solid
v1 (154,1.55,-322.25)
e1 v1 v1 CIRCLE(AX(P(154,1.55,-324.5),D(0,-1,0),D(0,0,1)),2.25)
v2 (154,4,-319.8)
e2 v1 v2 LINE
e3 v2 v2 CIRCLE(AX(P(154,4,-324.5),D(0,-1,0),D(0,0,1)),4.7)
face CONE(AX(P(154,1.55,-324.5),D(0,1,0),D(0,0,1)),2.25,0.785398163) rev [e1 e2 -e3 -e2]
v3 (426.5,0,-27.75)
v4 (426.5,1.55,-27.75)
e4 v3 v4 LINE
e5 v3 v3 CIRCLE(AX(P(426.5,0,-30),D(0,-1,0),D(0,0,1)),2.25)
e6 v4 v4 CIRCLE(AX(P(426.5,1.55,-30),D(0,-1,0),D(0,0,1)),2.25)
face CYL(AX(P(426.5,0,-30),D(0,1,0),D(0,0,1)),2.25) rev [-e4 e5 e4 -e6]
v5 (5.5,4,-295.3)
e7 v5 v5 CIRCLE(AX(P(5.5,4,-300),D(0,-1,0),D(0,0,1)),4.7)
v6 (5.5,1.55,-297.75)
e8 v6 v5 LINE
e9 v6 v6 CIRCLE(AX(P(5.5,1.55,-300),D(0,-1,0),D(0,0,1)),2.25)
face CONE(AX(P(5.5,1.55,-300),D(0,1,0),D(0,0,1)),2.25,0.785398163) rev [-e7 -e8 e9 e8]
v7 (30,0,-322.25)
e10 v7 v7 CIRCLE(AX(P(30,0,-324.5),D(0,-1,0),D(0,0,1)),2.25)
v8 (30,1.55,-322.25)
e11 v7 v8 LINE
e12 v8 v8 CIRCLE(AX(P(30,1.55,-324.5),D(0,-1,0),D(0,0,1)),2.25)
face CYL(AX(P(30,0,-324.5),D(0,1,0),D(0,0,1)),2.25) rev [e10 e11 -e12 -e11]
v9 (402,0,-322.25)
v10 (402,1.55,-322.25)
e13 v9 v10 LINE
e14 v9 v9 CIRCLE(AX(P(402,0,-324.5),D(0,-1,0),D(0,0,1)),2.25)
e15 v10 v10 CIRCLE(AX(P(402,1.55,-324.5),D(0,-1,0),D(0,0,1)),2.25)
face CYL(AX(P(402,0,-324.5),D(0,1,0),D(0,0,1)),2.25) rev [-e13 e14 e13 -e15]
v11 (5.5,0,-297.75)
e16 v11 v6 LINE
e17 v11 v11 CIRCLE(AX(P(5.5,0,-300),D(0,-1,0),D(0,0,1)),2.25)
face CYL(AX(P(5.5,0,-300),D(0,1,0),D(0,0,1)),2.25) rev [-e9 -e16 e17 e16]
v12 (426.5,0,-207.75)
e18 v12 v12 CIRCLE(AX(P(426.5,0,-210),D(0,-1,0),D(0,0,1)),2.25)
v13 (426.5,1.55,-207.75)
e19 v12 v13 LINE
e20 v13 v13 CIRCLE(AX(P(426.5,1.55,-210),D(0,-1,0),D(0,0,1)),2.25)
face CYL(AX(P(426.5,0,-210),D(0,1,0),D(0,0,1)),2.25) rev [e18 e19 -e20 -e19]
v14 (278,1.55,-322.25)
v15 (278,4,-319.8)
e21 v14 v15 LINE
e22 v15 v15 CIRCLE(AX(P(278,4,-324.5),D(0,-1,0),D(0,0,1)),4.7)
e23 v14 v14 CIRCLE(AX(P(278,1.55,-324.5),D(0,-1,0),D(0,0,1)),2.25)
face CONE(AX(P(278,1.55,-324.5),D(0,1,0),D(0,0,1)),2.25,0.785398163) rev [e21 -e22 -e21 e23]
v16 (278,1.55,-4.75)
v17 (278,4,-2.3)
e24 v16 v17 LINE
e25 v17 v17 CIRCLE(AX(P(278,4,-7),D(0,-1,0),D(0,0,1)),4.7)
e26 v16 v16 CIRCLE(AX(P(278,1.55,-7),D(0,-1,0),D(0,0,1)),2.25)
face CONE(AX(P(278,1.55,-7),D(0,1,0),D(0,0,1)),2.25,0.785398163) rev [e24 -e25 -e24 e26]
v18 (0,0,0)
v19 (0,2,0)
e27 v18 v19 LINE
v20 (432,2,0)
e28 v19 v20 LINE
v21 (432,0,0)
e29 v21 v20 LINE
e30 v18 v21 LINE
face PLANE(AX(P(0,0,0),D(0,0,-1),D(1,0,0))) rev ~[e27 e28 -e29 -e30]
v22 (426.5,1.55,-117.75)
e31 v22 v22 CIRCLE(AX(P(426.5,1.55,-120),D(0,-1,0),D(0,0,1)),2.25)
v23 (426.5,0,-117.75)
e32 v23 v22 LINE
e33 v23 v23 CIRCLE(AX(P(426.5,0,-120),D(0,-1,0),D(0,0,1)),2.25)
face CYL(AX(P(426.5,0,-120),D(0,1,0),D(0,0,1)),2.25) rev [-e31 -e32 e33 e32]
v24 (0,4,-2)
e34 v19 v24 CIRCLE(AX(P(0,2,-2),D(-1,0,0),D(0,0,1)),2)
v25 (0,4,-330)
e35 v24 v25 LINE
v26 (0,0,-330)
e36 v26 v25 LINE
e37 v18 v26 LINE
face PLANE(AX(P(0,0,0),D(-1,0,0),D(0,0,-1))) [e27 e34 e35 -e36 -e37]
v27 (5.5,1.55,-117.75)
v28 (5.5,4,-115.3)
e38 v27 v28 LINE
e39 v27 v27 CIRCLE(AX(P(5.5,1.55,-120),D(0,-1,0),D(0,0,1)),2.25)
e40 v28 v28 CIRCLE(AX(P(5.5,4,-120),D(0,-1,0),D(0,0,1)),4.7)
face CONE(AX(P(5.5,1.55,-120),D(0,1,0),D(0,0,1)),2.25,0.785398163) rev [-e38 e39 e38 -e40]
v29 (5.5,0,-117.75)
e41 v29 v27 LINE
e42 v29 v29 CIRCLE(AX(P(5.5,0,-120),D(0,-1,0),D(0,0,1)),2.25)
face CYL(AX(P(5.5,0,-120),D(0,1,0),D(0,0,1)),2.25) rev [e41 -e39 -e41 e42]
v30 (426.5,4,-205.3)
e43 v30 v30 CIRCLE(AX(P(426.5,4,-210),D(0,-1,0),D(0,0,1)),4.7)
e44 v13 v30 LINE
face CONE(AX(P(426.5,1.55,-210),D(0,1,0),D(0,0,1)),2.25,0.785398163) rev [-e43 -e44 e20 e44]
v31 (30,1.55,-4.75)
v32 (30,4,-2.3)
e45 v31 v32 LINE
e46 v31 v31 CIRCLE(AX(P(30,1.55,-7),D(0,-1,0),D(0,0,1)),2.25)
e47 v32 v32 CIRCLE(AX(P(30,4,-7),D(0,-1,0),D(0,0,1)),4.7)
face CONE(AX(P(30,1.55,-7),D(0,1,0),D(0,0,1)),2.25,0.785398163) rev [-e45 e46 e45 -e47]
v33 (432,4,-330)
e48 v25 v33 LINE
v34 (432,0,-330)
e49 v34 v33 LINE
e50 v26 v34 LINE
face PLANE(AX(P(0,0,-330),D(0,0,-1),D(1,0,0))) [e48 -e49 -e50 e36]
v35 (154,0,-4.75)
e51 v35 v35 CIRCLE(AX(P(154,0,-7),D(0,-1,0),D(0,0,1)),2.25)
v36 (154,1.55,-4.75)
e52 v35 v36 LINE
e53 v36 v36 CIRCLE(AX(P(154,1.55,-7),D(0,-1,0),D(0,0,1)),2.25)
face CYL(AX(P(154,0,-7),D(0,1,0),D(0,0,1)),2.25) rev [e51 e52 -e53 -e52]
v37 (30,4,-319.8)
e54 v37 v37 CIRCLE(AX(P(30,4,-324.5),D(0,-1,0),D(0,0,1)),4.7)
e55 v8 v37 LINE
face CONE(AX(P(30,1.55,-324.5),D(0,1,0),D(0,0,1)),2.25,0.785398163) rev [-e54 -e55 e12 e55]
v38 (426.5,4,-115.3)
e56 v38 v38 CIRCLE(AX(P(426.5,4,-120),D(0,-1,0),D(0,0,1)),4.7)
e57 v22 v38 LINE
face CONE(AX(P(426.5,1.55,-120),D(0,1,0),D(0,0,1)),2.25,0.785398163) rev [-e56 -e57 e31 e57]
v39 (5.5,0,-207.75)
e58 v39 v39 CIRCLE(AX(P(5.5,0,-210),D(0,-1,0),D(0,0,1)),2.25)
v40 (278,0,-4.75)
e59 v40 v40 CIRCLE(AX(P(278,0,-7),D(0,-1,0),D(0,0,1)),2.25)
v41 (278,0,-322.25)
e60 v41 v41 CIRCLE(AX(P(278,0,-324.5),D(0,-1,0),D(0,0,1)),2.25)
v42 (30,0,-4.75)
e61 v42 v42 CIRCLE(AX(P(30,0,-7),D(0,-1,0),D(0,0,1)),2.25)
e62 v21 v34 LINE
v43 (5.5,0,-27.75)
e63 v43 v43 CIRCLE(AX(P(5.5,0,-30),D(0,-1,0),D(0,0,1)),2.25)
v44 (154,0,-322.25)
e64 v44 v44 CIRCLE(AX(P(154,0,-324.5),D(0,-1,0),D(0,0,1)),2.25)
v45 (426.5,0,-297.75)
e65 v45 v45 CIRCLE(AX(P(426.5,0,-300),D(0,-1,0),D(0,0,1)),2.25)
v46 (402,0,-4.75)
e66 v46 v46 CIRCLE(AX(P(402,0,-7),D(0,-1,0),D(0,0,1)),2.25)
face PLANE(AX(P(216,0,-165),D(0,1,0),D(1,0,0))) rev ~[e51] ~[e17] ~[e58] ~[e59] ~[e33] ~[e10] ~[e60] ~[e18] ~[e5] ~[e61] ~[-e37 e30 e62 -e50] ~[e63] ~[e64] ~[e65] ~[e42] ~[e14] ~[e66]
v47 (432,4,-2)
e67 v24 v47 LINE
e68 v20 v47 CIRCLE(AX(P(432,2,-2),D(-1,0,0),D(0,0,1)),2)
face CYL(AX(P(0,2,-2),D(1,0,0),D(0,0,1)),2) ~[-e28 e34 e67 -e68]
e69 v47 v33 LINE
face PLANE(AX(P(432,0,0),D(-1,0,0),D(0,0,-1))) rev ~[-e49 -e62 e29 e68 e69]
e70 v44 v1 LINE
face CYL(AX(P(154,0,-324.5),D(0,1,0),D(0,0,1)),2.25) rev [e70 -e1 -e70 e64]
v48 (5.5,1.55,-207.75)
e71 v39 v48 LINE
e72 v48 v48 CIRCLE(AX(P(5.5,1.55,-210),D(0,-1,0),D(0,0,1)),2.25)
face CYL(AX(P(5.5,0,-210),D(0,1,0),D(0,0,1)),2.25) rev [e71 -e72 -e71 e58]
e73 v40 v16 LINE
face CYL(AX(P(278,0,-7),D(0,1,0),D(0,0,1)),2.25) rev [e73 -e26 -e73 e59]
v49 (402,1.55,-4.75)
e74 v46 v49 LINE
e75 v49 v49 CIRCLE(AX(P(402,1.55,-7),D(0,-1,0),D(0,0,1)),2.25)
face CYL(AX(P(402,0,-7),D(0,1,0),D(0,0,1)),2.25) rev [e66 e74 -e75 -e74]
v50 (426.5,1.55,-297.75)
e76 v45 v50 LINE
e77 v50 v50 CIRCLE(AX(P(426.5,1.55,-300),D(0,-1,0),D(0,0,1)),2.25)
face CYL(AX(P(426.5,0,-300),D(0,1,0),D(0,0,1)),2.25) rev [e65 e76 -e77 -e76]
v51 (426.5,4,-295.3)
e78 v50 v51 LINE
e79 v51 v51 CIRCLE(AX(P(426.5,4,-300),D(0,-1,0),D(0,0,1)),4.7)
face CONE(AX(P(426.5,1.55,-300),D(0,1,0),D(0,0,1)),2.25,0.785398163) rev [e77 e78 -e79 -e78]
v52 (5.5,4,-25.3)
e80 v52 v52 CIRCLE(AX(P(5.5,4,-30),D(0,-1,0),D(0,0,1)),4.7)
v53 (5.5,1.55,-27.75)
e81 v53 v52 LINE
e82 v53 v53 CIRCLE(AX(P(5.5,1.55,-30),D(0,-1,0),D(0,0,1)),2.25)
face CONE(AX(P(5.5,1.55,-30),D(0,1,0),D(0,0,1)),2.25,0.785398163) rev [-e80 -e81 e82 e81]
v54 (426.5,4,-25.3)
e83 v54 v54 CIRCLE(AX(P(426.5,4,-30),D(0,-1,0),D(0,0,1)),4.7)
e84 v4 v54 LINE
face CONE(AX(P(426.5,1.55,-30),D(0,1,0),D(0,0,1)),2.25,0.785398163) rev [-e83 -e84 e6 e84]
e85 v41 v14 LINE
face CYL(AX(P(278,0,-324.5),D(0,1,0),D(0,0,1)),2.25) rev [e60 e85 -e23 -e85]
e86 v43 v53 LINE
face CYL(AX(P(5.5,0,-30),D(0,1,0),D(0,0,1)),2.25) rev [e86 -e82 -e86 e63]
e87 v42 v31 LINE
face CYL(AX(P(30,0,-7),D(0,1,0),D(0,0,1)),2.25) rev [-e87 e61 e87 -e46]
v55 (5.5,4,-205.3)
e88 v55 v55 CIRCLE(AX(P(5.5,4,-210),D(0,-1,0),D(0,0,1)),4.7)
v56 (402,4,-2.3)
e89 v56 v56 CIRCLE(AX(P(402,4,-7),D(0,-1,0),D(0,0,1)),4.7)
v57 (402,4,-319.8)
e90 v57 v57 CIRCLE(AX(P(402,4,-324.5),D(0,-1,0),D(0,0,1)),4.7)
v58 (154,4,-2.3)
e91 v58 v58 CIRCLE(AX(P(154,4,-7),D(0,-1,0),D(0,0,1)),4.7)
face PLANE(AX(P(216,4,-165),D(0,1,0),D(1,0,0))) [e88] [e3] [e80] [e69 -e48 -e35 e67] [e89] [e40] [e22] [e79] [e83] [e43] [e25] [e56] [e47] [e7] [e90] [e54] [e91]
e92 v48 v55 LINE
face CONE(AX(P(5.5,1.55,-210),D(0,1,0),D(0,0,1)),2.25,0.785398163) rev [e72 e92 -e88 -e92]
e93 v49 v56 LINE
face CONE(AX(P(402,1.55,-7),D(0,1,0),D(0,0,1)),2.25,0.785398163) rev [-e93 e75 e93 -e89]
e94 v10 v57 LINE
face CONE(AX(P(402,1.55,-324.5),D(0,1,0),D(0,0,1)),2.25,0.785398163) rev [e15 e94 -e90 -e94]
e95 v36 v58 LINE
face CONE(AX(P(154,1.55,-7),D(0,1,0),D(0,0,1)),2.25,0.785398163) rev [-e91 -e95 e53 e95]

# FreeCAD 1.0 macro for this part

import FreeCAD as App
import Part
import Sketcher
from FreeCAD import Vector
Q = App.Units.Quantity


def edges_at(feature, points):
    """Names of the edges that pass closest to the given points."""
    edges = feature.Shape.Edges
    near = lambda p: min(range(len(edges)), key=lambda i: edges[i].distToShape(Part.Vertex(*p))[0])
    return sorted({f"Edge{near(p) + 1}" for p in points})

doc = App.newDocument("Part")
body = doc.addObject("PartDesign::Body", "Body")

sketch1 = body.newObject("Sketcher::SketchObject", "Sketch")
sketch1.AttachmentSupport = (doc.getObject("XZ_Plane"), [""])
sketch1.MapMode = "FlatFace"
sketch1.addGeometry([
    Part.LineSegment(Vector(0, -330, 0), Vector(0, 0, 0)),
    Part.LineSegment(Vector(0, 0, 0), Vector(432, 0, 0)),
    Part.LineSegment(Vector(432, 0, 0), Vector(432, -330, 0)),
    Part.LineSegment(Vector(432, -330, 0), Vector(0, -330, 0)),
], False)
sketch1.addConstraint([
    Sketcher.Constraint("Coincident", 0, 2, 1, 1),
    Sketcher.Constraint("Coincident", 1, 2, 2, 1),
    Sketcher.Constraint("Coincident", 2, 2, 3, 1),
    Sketcher.Constraint("Coincident", 3, 2, 0, 1),
    Sketcher.Constraint("Vertical", 0),
    Sketcher.Constraint("Horizontal", 1),
    Sketcher.Constraint("Vertical", 2),
    Sketcher.Constraint("Horizontal", 3),
    Sketcher.Constraint("Coincident", 0, 2, -1, 1),
    Sketcher.Constraint("DistanceX", 1, 1, 1, 2, 432.0),
    Sketcher.Constraint("DistanceY", 0, 1, 0, 2, 330.0),
])
pad1 = body.newObject("PartDesign::Pad", "Pad")
pad1.Profile = sketch1
pad1.Length = 4
pad1.Reversed = True
doc.recompute()

fillet = body.newObject("PartDesign::Fillet", "Fillet")
fillet.Base = (pad1, edges_at(pad1, [(216, 4, 0)]))
fillet.Radius = 2

sketch2 = body.newObject("Sketcher::SketchObject", "Sketch001")
sketch2.AttachmentSupport = (doc.getObject("YZ_Plane"), [""])
sketch2.MapMode = "FlatFace"
sketch2.AttachmentOffset = App.Placement(Vector(0, 0, 30), App.Rotation())
sketch2.addGeometry([
    Part.LineSegment(Vector(0, -324.5, 0), Vector(4, -324.5, 0)),
    Part.LineSegment(Vector(4, -324.5, 0), Vector(4, -319.8, 0)),
    Part.LineSegment(Vector(4, -319.8, 0), Vector(1.6, -322.2, 0)),
    Part.LineSegment(Vector(1.6, -322.2, 0), Vector(0, -322.2, 0)),
    Part.LineSegment(Vector(0, -322.2, 0), Vector(0, -324.5, 0)),
], False)
sketch2.addGeometry(Part.LineSegment(Vector(4, -324.5, 0), Vector(0, -324.5, 0)), True)
sketch2.addConstraint([
    Sketcher.Constraint("Coincident", 0, 2, 1, 1),
    Sketcher.Constraint("Coincident", 1, 2, 2, 1),
    Sketcher.Constraint("Coincident", 2, 2, 3, 1),
    Sketcher.Constraint("Coincident", 3, 2, 4, 1),
    Sketcher.Constraint("Coincident", 4, 2, 0, 1),
    Sketcher.Constraint("Horizontal", 0),
    Sketcher.Constraint("Vertical", 1),
    Sketcher.Constraint("Horizontal", 3),
    Sketcher.Constraint("Vertical", 4),
    Sketcher.Constraint("Horizontal", 5),
    Sketcher.Constraint("Coincident", 5, 1, 0, 2),
    Sketcher.Constraint("PointOnObject", 3, 2, -2),
    Sketcher.Constraint("PointOnObject", 5, 2, -2),
    Sketcher.Constraint("DistanceX", 0, 1, 0, 2, 4.0),
    Sketcher.Constraint("Angle", 2, Q("-135 deg")),
    Sketcher.Constraint("DistanceY", 1, 1, 1, 2, 4.7),
    Sketcher.Constraint("DistanceX", 3, 2, 3, 1, 1.55),
    Sketcher.Constraint("DistanceY", 0, 2, -1, 1, 324.5),
])
groove = body.newObject("PartDesign::Groove", "Groove")
groove.Profile = sketch2
groove.ReferenceAxis = (sketch2, ["Axis0"])
groove.Angle = 360
doc.recompute()

linearpattern = body.newObject("PartDesign::LinearPattern", "LinearPattern")
linearpattern.Originals = [groove]
linearpattern.Direction = (doc.getObject("X_Axis"), [""])
linearpattern.Mode = "offset"
linearpattern.Offset = 124
linearpattern.Occurrences = 2
body.Tip = linearpattern
doc.recompute()

linearpattern2 = body.newObject("PartDesign::LinearPattern", "LinearPattern001")
linearpattern2.Originals = [groove]
linearpattern2.Direction = (doc.getObject("X_Axis"), [""])
linearpattern2.Mode = "offset"
linearpattern2.Offset = 248
linearpattern2.Occurrences = 2
body.Tip = linearpattern2
doc.recompute()

linearpattern3 = body.newObject("PartDesign::LinearPattern", "LinearPattern002")
linearpattern3.Originals = [groove]
linearpattern3.Direction = (doc.getObject("X_Axis"), [""])
linearpattern3.Mode = "offset"
linearpattern3.Offset = 372
linearpattern3.Occurrences = 2
body.Tip = linearpattern3
doc.recompute()

datumline = body.newObject("PartDesign::Line", "DatumLine")
datumline.Placement = App.Placement(Vector(0, 0, 0), App.Rotation(Vector(0, 0, 1), Vector(0.998096406, 0, 0.061673044)))
linearpattern4 = body.newObject("PartDesign::LinearPattern", "LinearPattern003")
linearpattern4.Originals = [groove]
linearpattern4.Direction = (datumline, [""])
linearpattern4.Mode = "offset"
linearpattern4.Offset = 397.256215
linearpattern4.Occurrences = 2
body.Tip = linearpattern4
doc.recompute()

datumline2 = body.newObject("PartDesign::Line", "DatumLine001")
datumline2.Placement = App.Placement(Vector(0, 0, 0), App.Rotation(Vector(0, 0, 1), Vector(0.960742892, 0, 0.277440255)))
linearpattern5 = body.newObject("PartDesign::LinearPattern", "LinearPattern004")
linearpattern5.Originals = [groove]
linearpattern5.Direction = (datumline2, [""])
linearpattern5.Mode = "offset"
linearpattern5.Offset = 412.701466
linearpattern5.Occurrences = 2
body.Tip = linearpattern5
doc.recompute()

datumline3 = body.newObject("PartDesign::Line", "DatumLine002")
datumline3.Placement = App.Placement(Vector(0, 0, 0), App.Rotation(Vector(0, 0, 1), Vector(0.888753231, 0, 0.458385967)))
linearpattern6 = body.newObject("PartDesign::LinearPattern", "LinearPattern005")
linearpattern6.Originals = [groove]
linearpattern6.Direction = (datumline3, [""])
linearpattern6.Mode = "offset"
linearpattern6.Offset = 446.130586
linearpattern6.Occurrences = 2
body.Tip = linearpattern6
doc.recompute()

datumline4 = body.newObject("PartDesign::Line", "DatumLine003")
datumline4.Placement = App.Placement(Vector(0, 0, 0), App.Rotation(Vector(0, 0, 1), Vector(0.802785383, 0, 0.596268084)))
linearpattern7 = body.newObject("PartDesign::LinearPattern", "LinearPattern006")
linearpattern7.Originals = [groove]
linearpattern7.Direction = (datumline4, [""])
linearpattern7.Mode = "offset"
linearpattern7.Offset = 493.905355
linearpattern7.Occurrences = 2
body.Tip = linearpattern7
doc.recompute()

datumline5 = body.newObject("PartDesign::Line", "DatumLine004")
datumline5.Placement = App.Placement(Vector(0, 0, 0), App.Rotation(Vector(0, 0, 1), Vector(0.760626065, 0, 0.649190257)))
linearpattern8 = body.newObject("PartDesign::LinearPattern", "LinearPattern007")
linearpattern8.Originals = [groove]
linearpattern8.Direction = (datumline5, [""])
linearpattern8.Mode = "offset"
linearpattern8.Offset = 489.070803
linearpattern8.Occurrences = 2
body.Tip = linearpattern8
doc.recompute()

datumline6 = body.newObject("PartDesign::Line", "DatumLine005")
datumline6.Placement = App.Placement(Vector(0, 0, 0), App.Rotation(Vector(0, 0, 1), Vector(0.615571788, 0, 0.788080817)))
linearpattern9 = body.newObject("PartDesign::LinearPattern", "LinearPattern008")
linearpattern9.Originals = [groove]
linearpattern9.Direction = (datumline6, [""])
linearpattern9.Mode = "offset"
linearpattern9.Offset = 402.877463
linearpattern9.Occurrences = 2
body.Tip = linearpattern9
doc.recompute()

datumline7 = body.newObject("PartDesign::Line", "DatumLine006")
datumline7.Placement = App.Placement(Vector(0, 0, 0), App.Rotation(Vector(0, 0, 1), Vector(0.363790869, 0, 0.931480651)))
linearpattern10 = body.newObject("PartDesign::LinearPattern", "LinearPattern009")
linearpattern10.Originals = [groove]
linearpattern10.Direction = (datumline7, [""])
linearpattern10.Mode = "offset"
linearpattern10.Offset = 340.855174
linearpattern10.Occurrences = 2
body.Tip = linearpattern10
doc.recompute()

linearpattern11 = body.newObject("PartDesign::LinearPattern", "LinearPattern010")
linearpattern11.Originals = [groove]
linearpattern11.Direction = (doc.getObject("Z_Axis"), [""])
linearpattern11.Mode = "offset"
linearpattern11.Offset = 317.5
linearpattern11.Occurrences = 2
body.Tip = linearpattern11
doc.recompute()

datumline8 = body.newObject("PartDesign::Line", "DatumLine007")
datumline8.Placement = App.Placement(Vector(0, 0, 0), App.Rotation(Vector(0, 0, 1), Vector(-0.082905456, 0, 0.996557417)))
linearpattern12 = body.newObject("PartDesign::LinearPattern", "LinearPattern011")
linearpattern12.Originals = [groove]
linearpattern12.Direction = (datumline8, [""])
linearpattern12.Mode = "offset"
linearpattern12.Offset = 295.517343
linearpattern12.Occurrences = 2
body.Tip = linearpattern12
doc.recompute()

datumline9 = body.newObject("PartDesign::Line", "DatumLine008")
datumline9.Placement = App.Placement(Vector(0, 0, 0), App.Rotation(Vector(0, 0, 1), Vector(-0.118953765, 0, 0.992899794)))
linearpattern13 = body.newObject("PartDesign::LinearPattern", "LinearPattern012")
linearpattern13.Originals = [groove]
linearpattern13.Direction = (datumline9, [""])
linearpattern13.Mode = "offset"
linearpattern13.Offset = 205.962375
linearpattern13.Occurrences = 2
body.Tip = linearpattern13
doc.recompute()

datumline10 = body.newObject("PartDesign::Line", "DatumLine009")
datumline10.Placement = App.Placement(Vector(0, 0, 0), App.Rotation(Vector(0, 0, 1), Vector(-0.209237459, 0, 0.977864861)))
linearpattern14 = body.newObject("PartDesign::LinearPattern", "LinearPattern013")
linearpattern14.Originals = [groove]
linearpattern14.Direction = (datumline10, [""])
linearpattern14.Mode = "offset"
linearpattern14.Offset = 117.091844
linearpattern14.Occurrences = 2
body.Tip = linearpattern14
doc.recompute()

datumline11 = body.newObject("PartDesign::Line", "DatumLine010")
datumline11.Placement = App.Placement(Vector(0, 0, 0), App.Rotation(Vector(0, 0, 1), Vector(-0.707106781, 0, 0.707106781)))
linearpattern15 = body.newObject("PartDesign::LinearPattern", "LinearPattern014")
linearpattern15.Originals = [groove]
linearpattern15.Direction = (datumline11, [""])
linearpattern15.Mode = "offset"
linearpattern15.Offset = 34.648232
linearpattern15.Occurrences = 2
body.Tip = linearpattern15

doc.recompute()
